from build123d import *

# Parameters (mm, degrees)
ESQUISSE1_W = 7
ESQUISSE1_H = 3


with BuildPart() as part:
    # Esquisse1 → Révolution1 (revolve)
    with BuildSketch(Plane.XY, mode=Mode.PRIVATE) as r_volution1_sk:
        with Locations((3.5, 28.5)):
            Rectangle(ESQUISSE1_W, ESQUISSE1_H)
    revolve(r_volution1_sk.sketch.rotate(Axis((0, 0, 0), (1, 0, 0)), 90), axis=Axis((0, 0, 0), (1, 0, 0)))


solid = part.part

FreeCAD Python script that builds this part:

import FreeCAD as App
import Part
import Sketcher
from FreeCAD import Vector

doc = App.newDocument("Part")
params = doc.addObject("Spreadsheet::Sheet", "Params")
for row, (alias, value) in enumerate([
    ("sketch1_width", "7 mm"),
    ("sketch1_height", "3 mm"),
    ("revolution_angle", "360 deg"),
], start=1):
    params.set(f"A{row}", alias)
    params.set(f"B{row}", "=" + value)
    params.setAlias(f"B{row}", alias)

body = doc.addObject("PartDesign::Body", "Body")

# Sketch on XY plane
sketch1 = body.newObject("Sketcher::SketchObject", "Sketch")
sketch1.AttachmentSupport = (doc.getObject("XY_Plane"), [""])
sketch1.MapMode = "FlatFace"
sketch1.addGeometry(Part.LineSegment(Vector(0, 30, 0), Vector(0, 27, 0)), False)
sketch1.addGeometry(Part.LineSegment(Vector(0, 27, 0), Vector(7, 27, 0)), False)
sketch1.addGeometry(Part.LineSegment(Vector(7, 27, 0), Vector(7, 30, 0)), False)
sketch1.addGeometry(Part.LineSegment(Vector(7, 30, 0), Vector(0, 30, 0)), False)
sketch1.addConstraint(Sketcher.Constraint("Coincident", 0, 2, 1, 1))
sketch1.addConstraint(Sketcher.Constraint("Coincident", 1, 2, 2, 1))
sketch1.addConstraint(Sketcher.Constraint("Coincident", 2, 2, 3, 1))
sketch1.addConstraint(Sketcher.Constraint("Coincident", 3, 2, 0, 1))
sketch1.addConstraint(Sketcher.Constraint("Vertical", 0))
sketch1.addConstraint(Sketcher.Constraint("Horizontal", 1))
sketch1.addConstraint(Sketcher.Constraint("Vertical", 2))
sketch1.addConstraint(Sketcher.Constraint("Horizontal", 3))
sketch1.addConstraint(Sketcher.Constraint("PointOnObject", 0, 2, -2))
sketch1.addConstraint(Sketcher.Constraint("DistanceX", 1, 1, 1, 2, 7.0))
sketch1.addConstraint(Sketcher.Constraint("DistanceY", 0, 2, 0, 1, 3.0))
sketch1.addConstraint(Sketcher.Constraint("DistanceY", -1, 1, 0, 2, 27.0))
sketch1.setExpression("Constraints[9]", "Params.sketch1_width")
sketch1.setExpression("Constraints[10]", "Params.sketch1_height")
revolution = body.newObject("PartDesign::Revolution", "Revolution")
revolution.Profile = sketch1
revolution.ReferenceAxis = (sketch1, ["H_Axis"])
revolution.setExpression("Angle", "Params.revolution_angle")

doc.recompute()
